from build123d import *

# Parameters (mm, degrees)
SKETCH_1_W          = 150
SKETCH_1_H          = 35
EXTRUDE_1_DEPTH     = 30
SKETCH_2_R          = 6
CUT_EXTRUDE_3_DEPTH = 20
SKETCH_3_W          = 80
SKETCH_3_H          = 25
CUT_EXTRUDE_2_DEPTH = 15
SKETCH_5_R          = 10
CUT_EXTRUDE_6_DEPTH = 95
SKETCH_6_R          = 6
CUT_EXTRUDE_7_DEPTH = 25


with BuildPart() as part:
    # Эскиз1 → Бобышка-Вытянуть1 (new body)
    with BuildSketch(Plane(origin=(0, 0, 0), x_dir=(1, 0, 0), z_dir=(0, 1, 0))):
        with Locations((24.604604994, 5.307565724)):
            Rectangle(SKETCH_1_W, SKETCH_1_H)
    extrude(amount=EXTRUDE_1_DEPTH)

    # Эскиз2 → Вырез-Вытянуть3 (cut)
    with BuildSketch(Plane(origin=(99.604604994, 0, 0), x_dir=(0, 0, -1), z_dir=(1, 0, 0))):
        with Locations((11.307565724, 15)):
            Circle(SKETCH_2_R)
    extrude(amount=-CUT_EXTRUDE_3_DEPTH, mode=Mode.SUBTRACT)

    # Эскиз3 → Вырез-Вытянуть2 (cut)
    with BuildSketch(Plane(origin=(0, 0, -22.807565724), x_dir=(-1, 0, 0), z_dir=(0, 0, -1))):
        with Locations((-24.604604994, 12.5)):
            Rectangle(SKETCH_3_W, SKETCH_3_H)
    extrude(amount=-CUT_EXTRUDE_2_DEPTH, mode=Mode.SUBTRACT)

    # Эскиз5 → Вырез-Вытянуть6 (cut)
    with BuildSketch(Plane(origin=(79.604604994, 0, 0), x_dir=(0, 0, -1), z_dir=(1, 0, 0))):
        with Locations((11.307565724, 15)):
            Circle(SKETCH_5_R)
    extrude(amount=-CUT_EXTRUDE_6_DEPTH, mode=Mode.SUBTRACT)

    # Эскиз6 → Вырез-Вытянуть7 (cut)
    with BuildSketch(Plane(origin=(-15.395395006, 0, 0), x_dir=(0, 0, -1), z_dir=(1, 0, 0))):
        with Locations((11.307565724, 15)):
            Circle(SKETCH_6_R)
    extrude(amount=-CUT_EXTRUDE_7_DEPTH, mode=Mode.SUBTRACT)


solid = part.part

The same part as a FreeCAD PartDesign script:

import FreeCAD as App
import Part
import Sketcher

doc = App.newDocument("Part")
body = doc.addObject("PartDesign::Body", "Body")

# Sketch on XZ plane
sketch1 = body.newObject("Sketcher::SketchObject", "Sketch")
sketch1.AttachmentSupport = (doc.getObject("XZ_Plane"), [""])
sketch1.MapMode = "FlatFace"
sketch1.addGeometry([
    Part.LineSegment(App.Vector(-50, -23, 0), App.Vector(-50, 12, 0)),
    Part.LineSegment(App.Vector(-50, 12, 0), App.Vector(100, 12, 0)),
    Part.LineSegment(App.Vector(100, 12, 0), App.Vector(100, -23, 0)),
    Part.LineSegment(App.Vector(100, -23, 0), App.Vector(-50, -23, 0)),
], False)
sketch1.addConstraint([
    Sketcher.Constraint("Coincident", 0, 2, 1, 1),
    Sketcher.Constraint("Coincident", 1, 2, 2, 1),
    Sketcher.Constraint("Coincident", 2, 2, 3, 1),
    Sketcher.Constraint("Coincident", 3, 2, 0, 1),
    Sketcher.Constraint("Vertical", 0),
    Sketcher.Constraint("Horizontal", 1),
    Sketcher.Constraint("Vertical", 2),
    Sketcher.Constraint("Horizontal", 3),
    Sketcher.Constraint("DistanceX", 1, 1, 1, 2, 150.0),
    Sketcher.Constraint("DistanceY", 0, 1, 0, 2, 35.0),
    Sketcher.Constraint("DistanceX", 0, 2, -1, 1, 50.395395),
    Sketcher.Constraint("DistanceY", -1, 1, 0, 2, 12.192434),
])
pad1 = body.newObject("PartDesign::Pad", "Pad")
pad1.Profile = sketch1
pad1.Length = 30
pad1.Reversed = True

# Sketch on YZ plane
sketch2 = body.newObject("Sketcher::SketchObject", "Sketch001")
sketch2.AttachmentSupport = (doc.getObject("YZ_Plane"), [""])
sketch2.MapMode = "FlatFace"
sketch2.AttachmentOffset = App.Placement(App.Vector(0, 0, 99.604605), App.Rotation())
sketch2.addGeometry(Part.Circle(App.Vector(15, -11, 0), App.Vector(0, 0, 1), 6), False)
sketch2.addConstraint([
    Sketcher.Constraint("Diameter", 0, 12.0),
    Sketcher.Constraint("DistanceX", -1, 1, 0, 3, 15.0),
    Sketcher.Constraint("DistanceY", 0, 3, -1, 1, 11.307566),
])
pocket1 = body.newObject("PartDesign::Pocket", "Pocket")
pocket1.Profile = sketch2
pocket1.Length = 20

# Sketch on XY plane
sketch3 = body.newObject("Sketcher::SketchObject", "Sketch002")
sketch3.AttachmentSupport = (doc.getObject("XY_Plane"), [""])
sketch3.MapMode = "FlatFace"
sketch3.AttachmentOffset = App.Placement(App.Vector(0, 0, -22.807566), App.Rotation())
sketch3.addGeometry([
    Part.LineSegment(App.Vector(65, 25, 0), App.Vector(65, 0, 0)),
    Part.LineSegment(App.Vector(65, 0, 0), App.Vector(-15, 0, 0)),
    Part.LineSegment(App.Vector(-15, 0, 0), App.Vector(-15, 25, 0)),
    Part.LineSegment(App.Vector(-15, 25, 0), App.Vector(65, 25, 0)),
], False)
sketch3.addConstraint([
    Sketcher.Constraint("Coincident", 0, 2, 1, 1),
    Sketcher.Constraint("Coincident", 1, 2, 2, 1),
    Sketcher.Constraint("Coincident", 2, 2, 3, 1),
    Sketcher.Constraint("Coincident", 3, 2, 0, 1),
    Sketcher.Constraint("Vertical", 0),
    Sketcher.Constraint("Horizontal", 1),
    Sketcher.Constraint("Vertical", 2),
    Sketcher.Constraint("Horizontal", 3),
    Sketcher.Constraint("PointOnObject", 0, 2, -1),
    Sketcher.Constraint("DistanceX", 1, 2, 1, 1, 80.0),
    Sketcher.Constraint("DistanceY", 0, 2, 0, 1, 25.0),
    Sketcher.Constraint("DistanceX", -1, 1, 0, 2, 64.604605),
])
pocket2 = body.newObject("PartDesign::Pocket", "Pocket001")
pocket2.Profile = sketch3
pocket2.Length = 15
pocket2.Reversed = True

# Sketch on YZ plane
sketch4 = body.newObject("Sketcher::SketchObject", "Sketch003")
sketch4.AttachmentSupport = (doc.getObject("YZ_Plane"), [""])
sketch4.MapMode = "FlatFace"
sketch4.AttachmentOffset = App.Placement(App.Vector(0, 0, 79.604605), App.Rotation())
sketch4.addGeometry(Part.Circle(App.Vector(15, -11, 0), App.Vector(0, 0, 1), 10), False)
sketch4.addConstraint([
    Sketcher.Constraint("Diameter", 0, 20.0),
    Sketcher.Constraint("DistanceX", -1, 1, 0, 3, 15.0),
    Sketcher.Constraint("DistanceY", 0, 3, -1, 1, 11.307566),
])
pocket3 = body.newObject("PartDesign::Pocket", "Pocket002")
pocket3.Profile = sketch4
pocket3.Length = 95

# Sketch on YZ plane
sketch5 = body.newObject("Sketcher::SketchObject", "Sketch004")
sketch5.AttachmentSupport = (doc.getObject("YZ_Plane"), [""])
sketch5.MapMode = "FlatFace"
sketch5.AttachmentOffset = App.Placement(App.Vector(0, 0, -15.395395), App.Rotation())
sketch5.addGeometry(Part.Circle(App.Vector(15, -11, 0), App.Vector(0, 0, 1), 6), False)
sketch5.addConstraint([
    Sketcher.Constraint("Diameter", 0, 12.0),
    Sketcher.Constraint("DistanceX", -1, 1, 0, 3, 15.0),
    Sketcher.Constraint("DistanceY", 0, 3, -1, 1, 11.307566),
])
pocket4 = body.newObject("PartDesign::Pocket", "Pocket003")
pocket4.Profile = sketch5
pocket4.Length = 25

doc.recompute()
